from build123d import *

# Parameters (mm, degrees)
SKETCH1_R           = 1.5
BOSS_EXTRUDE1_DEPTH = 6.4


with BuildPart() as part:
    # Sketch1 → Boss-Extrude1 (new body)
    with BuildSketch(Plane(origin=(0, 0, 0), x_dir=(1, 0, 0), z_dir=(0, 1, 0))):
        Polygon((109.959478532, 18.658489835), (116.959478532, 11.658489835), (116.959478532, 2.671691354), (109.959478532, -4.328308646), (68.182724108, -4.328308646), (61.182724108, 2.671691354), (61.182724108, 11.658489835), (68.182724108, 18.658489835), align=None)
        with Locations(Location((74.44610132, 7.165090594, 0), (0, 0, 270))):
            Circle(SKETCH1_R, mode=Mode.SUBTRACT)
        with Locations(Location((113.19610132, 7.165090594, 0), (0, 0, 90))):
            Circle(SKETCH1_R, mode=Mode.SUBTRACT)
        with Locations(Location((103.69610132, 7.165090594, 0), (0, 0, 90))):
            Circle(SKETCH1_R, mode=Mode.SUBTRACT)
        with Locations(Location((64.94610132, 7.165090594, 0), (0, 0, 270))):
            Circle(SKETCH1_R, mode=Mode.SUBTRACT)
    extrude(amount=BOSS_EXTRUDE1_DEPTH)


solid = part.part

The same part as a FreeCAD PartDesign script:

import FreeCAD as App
import Part
import Sketcher

V = App.Vector
Q = App.Units.Quantity

doc = App.newDocument("Part")
params = doc.addObject("Spreadsheet::Sheet", "Params")
for row, (alias, value) in enumerate([
    ("sketch1_diameter", "3 mm"),
    ("pad1_length", "6.4 mm"),
], start=1):
    params.set(f"A{row}", alias)
    params.set(f"B{row}", "=" + value)
    params.setAlias(f"B{row}", alias)

body = doc.addObject("PartDesign::Body", "Body")

sketch1 = body.newObject("Sketcher::SketchObject", "Sketch")
sketch1.AttachmentSupport = (doc.getObject("XZ_Plane"), [""])
sketch1.MapMode = "FlatFace"
sketch1.addGeometry([
    Part.LineSegment(V(117, -11.7, 0), V(110, -18.7, 0)),
    Part.LineSegment(V(110, -18.7, 0), V(68.2, -18.7, 0)),
    Part.LineSegment(V(68.2, -18.7, 0), V(61.2, -11.7, 0)),
    Part.LineSegment(V(61.2, -11.7, 0), V(61.2, -2.7, 0)),
    Part.LineSegment(V(61.2, -2.7, 0), V(68.2, 4.3, 0)),
    Part.LineSegment(V(68.2, 4.3, 0), V(110, 4.3, 0)),
    Part.LineSegment(V(110, 4.3, 0), V(117, -2.7, 0)),
    Part.LineSegment(V(117, -2.7, 0), V(117, -11.7, 0)),
    Part.Circle(V(113.2, -7.2, 0), V(0, 0, 1), 1.5),
    Part.Circle(V(103.7, -7.2, 0), V(0, 0, 1), 1.5),
    Part.Circle(V(74.4, -7.2, 0), V(0, 0, 1), 1.5),
    Part.Circle(V(64.9, -7.2, 0), V(0, 0, 1), 1.5),
], False)
sketch1.addConstraint([
    Sketcher.Constraint("Coincident", 0, 2, 1, 1),
    Sketcher.Constraint("Coincident", 1, 2, 2, 1),
    Sketcher.Constraint("Coincident", 2, 2, 3, 1),
    Sketcher.Constraint("Coincident", 3, 2, 4, 1),
    Sketcher.Constraint("Coincident", 4, 2, 5, 1),
    Sketcher.Constraint("Coincident", 5, 2, 6, 1),
    Sketcher.Constraint("Coincident", 6, 2, 7, 1),
    Sketcher.Constraint("Coincident", 7, 2, 0, 1),
    Sketcher.Constraint("Horizontal", 1),
    Sketcher.Constraint("Vertical", 3),
    Sketcher.Constraint("Horizontal", 5),
    Sketcher.Constraint("Vertical", 7),
    Sketcher.Constraint("Equal", 8, 9),
    Sketcher.Constraint("Equal", 9, 10),
    Sketcher.Constraint("Equal", 10, 11),
    Sketcher.Constraint("Perpendicular", 0, 2),
    Sketcher.Constraint("Perpendicular", 2, 4),
    Sketcher.Constraint("Perpendicular", 4, 6),
    Sketcher.Constraint("Horizontal", 8, 3, 9, 3),
    Sketcher.Constraint("Horizontal", 9, 3, 10, 3),
    Sketcher.Constraint("Horizontal", 10, 3, 11, 3),
    Sketcher.Constraint("Horizontal", 3, 2, 6, 2),
    Sketcher.Constraint("Horizontal", 2, 2, 7, 2),
    Sketcher.Constraint("Vertical", 1, 2, 4, 2),
    Sketcher.Constraint("Vertical", 0, 2, 5, 2),
    Sketcher.Constraint("Diameter", 8, Q("3 mm")),
    Sketcher.Constraint("DistanceX", 2, 2, 1, 2, Q("7 mm")),
    Sketcher.Constraint("DistanceX", 9, 3, 8, 3, Q("9.5 mm")),
    Sketcher.Constraint("DistanceX", 11, 3, 10, 3, Q("9.5 mm")),
    Sketcher.Constraint("DistanceX", 10, 3, 9, 3, Q("29.25 mm")),
    Sketcher.Constraint("DistanceY", 3, 1, 3, 2, Q("8.986798 mm")),
    Sketcher.Constraint("DistanceX", -1, 1, 8, 3, Q("113.196101 mm")),
    Sketcher.Constraint("DistanceY", 0, 2, 8, 3, Q("11.493399 mm")),
    Sketcher.Constraint("DistanceX", 1, 2, 1, 1, Q("41.776754 mm")),
    Sketcher.Constraint("DistanceY", 8, 3, -1, 1, Q("7.165091 mm")),
    Sketcher.Constraint("DistanceX", -1, 1, 0, 2, Q("109.959479 mm")),
])
sketch1.setExpression("Constraints[25]", "Params.sketch1_diameter")
pad1 = body.newObject("PartDesign::Pad", "Pad")
pad1.Profile = sketch1
pad1.setExpression("Length", "Params.pad1_length")
pad1.Reversed = True

doc.recompute()
